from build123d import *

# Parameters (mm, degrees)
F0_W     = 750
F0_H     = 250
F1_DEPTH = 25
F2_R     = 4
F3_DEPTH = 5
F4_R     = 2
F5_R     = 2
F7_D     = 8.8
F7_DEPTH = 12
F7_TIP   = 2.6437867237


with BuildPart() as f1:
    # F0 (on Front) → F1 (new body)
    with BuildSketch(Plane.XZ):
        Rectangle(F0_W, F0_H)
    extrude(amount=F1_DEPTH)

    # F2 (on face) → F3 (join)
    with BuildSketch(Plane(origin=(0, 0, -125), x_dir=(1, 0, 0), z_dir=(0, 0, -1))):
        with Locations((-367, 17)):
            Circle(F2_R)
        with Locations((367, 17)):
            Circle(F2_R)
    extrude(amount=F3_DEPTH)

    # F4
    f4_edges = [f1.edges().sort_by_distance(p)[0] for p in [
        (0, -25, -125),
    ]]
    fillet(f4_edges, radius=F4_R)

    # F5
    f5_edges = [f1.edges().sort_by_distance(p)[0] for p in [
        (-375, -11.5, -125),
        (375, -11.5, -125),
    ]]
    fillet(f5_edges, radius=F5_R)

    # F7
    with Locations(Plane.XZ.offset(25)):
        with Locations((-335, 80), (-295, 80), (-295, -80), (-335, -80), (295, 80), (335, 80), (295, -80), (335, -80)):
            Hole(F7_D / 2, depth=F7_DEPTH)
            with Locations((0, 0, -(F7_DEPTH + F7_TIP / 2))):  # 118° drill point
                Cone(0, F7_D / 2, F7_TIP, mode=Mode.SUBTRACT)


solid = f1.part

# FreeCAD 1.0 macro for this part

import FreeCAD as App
import Part
import Sketcher
from FreeCAD import Vector
Q = App.Units.Quantity


def edges_at(feature, points):
    """Names of the edges that pass closest to the given points."""
    edges = feature.Shape.Edges
    near = lambda p: min(range(len(edges)), key=lambda i: edges[i].distToShape(Part.Vertex(*p))[0])
    return sorted({f"Edge{near(p) + 1}" for p in points})


def add_polygon(sketch, points):
    """Adds a closed chain of lines whose ends are joined by coincident constraints."""
    first, n = sketch.GeometryCount, len(points)
    for a, b in zip(points, points[1:] + points[:1]):
        sketch.addGeometry(Part.LineSegment(App.Vector(*a, 0), App.Vector(*b, 0)), False)
    for i in range(n):
        sketch.addConstraint(Sketcher.Constraint("Coincident", first + i, 2, first + (i + 1) % n, 1))

doc = App.newDocument("Part")
body = doc.addObject("PartDesign::Body", "Body")

sketch1 = body.newObject("Sketcher::SketchObject", "Sketch")
sketch1.AttachmentSupport = (doc.getObject("XZ_Plane"), [""])
sketch1.MapMode = "FlatFace"
add_polygon(sketch1, [(-375, 125), (-375, -125), (375, -125), (375, 125)])
sketch1.addConstraint(Sketcher.Constraint("Vertical", 0))
sketch1.addConstraint(Sketcher.Constraint("Horizontal", 1))
sketch1.addConstraint(Sketcher.Constraint("Vertical", 2))
sketch1.addConstraint(Sketcher.Constraint("Horizontal", 3))
sketch1.addConstraint(Sketcher.Constraint("Symmetric", 0, 2, 2, 2, -1, 1))
sketch1.addConstraint(Sketcher.Constraint("DistanceX", 1, 1, 1, 2, Q("750 mm")))
sketch1.addConstraint(Sketcher.Constraint("DistanceY", 0, 2, 0, 1, Q("250 mm")))
pad1 = body.newObject("PartDesign::Pad", "Pad")
pad1.Profile = sketch1
pad1.Length = 25

sketch2 = body.newObject("Sketcher::SketchObject", "Sketch001")
sketch2.AttachmentSupport = (doc.getObject("XY_Plane"), [""])
sketch2.MapMode = "FlatFace"
sketch2.AttachmentOffset = App.Placement(Vector(0, 0, -125), App.Rotation())
sketch2.addGeometry(Part.Circle(Vector(-367, -17, 0), Vector(0, 0, 1), 4), False)
sketch2.addGeometry(Part.Circle(Vector(367, -17, 0), Vector(0, 0, 1), 4), False)
sketch2.addConstraint(Sketcher.Constraint("Equal", 0, 1))
sketch2.addConstraint(Sketcher.Constraint("Symmetric", 0, 3, 1, 3, -2))
sketch2.addConstraint(Sketcher.Constraint("Diameter", 0, Q("8 mm")))
sketch2.addConstraint(Sketcher.Constraint("DistanceX", 0, 3, -1, 1, Q("367 mm")))
sketch2.addConstraint(Sketcher.Constraint("DistanceY", 0, 3, -1, 1, Q("17 mm")))
pad2 = body.newObject("PartDesign::Pad", "Pad001")
pad2.Profile = sketch2
pad2.Length = 5
pad2.Reversed = True
doc.recompute()

fillet = body.newObject("PartDesign::Fillet", "Fillet")
fillet.Base = (pad2, edges_at(pad2, [(0, -25, -125)]))
fillet.Radius = 2
doc.recompute()

fillet2 = body.newObject("PartDesign::Fillet", "Fillet001")
fillet2.Base = (fillet, edges_at(fillet, [(-375, -11.5, -125), (375, -11.5, -125)]))
fillet2.Radius = 2

sketch3 = body.newObject("Sketcher::SketchObject", "Sketch002")
sketch3.AttachmentSupport = (doc.getObject("XZ_Plane"), [""])
sketch3.MapMode = "FlatFace"
sketch3.AttachmentOffset = App.Placement(Vector(0, 0, 25), App.Rotation())
sketch3.addGeometry(Part.Circle(Vector(-335, 80, 0), Vector(0, 0, 1), 4.4), False)
sketch3.addGeometry(Part.Circle(Vector(-295, 80, 0), Vector(0, 0, 1), 4.4), False)
sketch3.addGeometry(Part.Circle(Vector(-295, -80, 0), Vector(0, 0, 1), 4.4), False)
sketch3.addGeometry(Part.Circle(Vector(-335, -80, 0), Vector(0, 0, 1), 4.4), False)
sketch3.addGeometry(Part.Circle(Vector(295, 80, 0), Vector(0, 0, 1), 4.4), False)
sketch3.addGeometry(Part.Circle(Vector(335, 80, 0), Vector(0, 0, 1), 4.4), False)
sketch3.addGeometry(Part.Circle(Vector(295, -80, 0), Vector(0, 0, 1), 4.4), False)
sketch3.addGeometry(Part.Circle(Vector(335, -80, 0), Vector(0, 0, 1), 4.4), False)
sketch3.addConstraint(Sketcher.Constraint("Equal", 0, 1))
sketch3.addConstraint(Sketcher.Constraint("Equal", 1, 2))
sketch3.addConstraint(Sketcher.Constraint("Equal", 2, 3))
sketch3.addConstraint(Sketcher.Constraint("Equal", 3, 4))
sketch3.addConstraint(Sketcher.Constraint("Equal", 4, 5))
sketch3.addConstraint(Sketcher.Constraint("Equal", 5, 6))
sketch3.addConstraint(Sketcher.Constraint("Equal", 6, 7))
sketch3.addConstraint(Sketcher.Constraint("Symmetric", 2, 3, 4, 3, -1, 1))
sketch3.addConstraint(Sketcher.Constraint("Symmetric", 3, 3, 5, 3, -1, 1))
sketch3.addConstraint(Sketcher.Constraint("Symmetric", 1, 3, 6, 3, -1, 1))
sketch3.addConstraint(Sketcher.Constraint("Symmetric", 0, 3, 7, 3, -1, 1))
sketch3.addConstraint(Sketcher.Constraint("Symmetric", 1, 3, 4, 3, -2))
sketch3.addConstraint(Sketcher.Constraint("Symmetric", 0, 3, 5, 3, -2))
sketch3.addConstraint(Sketcher.Constraint("Horizontal", 0, 3, 1, 3))
sketch3.addConstraint(Sketcher.Constraint("Diameter", 0, Q("8.8 mm")))
sketch3.addConstraint(Sketcher.Constraint("DistanceX", 0, 3, -1, 1, Q("335 mm")))
sketch3.addConstraint(Sketcher.Constraint("DistanceY", -1, 1, 0, 3, Q("80 mm")))
sketch3.addConstraint(Sketcher.Constraint("DistanceX", 1, 3, -1, 1, Q("295 mm")))
doc.recompute()
hole = body.newObject("PartDesign::Hole", "Hole")
hole.Profile = sketch3
hole.ThreadType = "None"
hole.Diameter = 8.8
hole.DepthType = "Dimension"
hole.Depth = 12
hole.DrillPoint = "Angled"
hole.DrillPointAngle = 118

doc.recompute()
